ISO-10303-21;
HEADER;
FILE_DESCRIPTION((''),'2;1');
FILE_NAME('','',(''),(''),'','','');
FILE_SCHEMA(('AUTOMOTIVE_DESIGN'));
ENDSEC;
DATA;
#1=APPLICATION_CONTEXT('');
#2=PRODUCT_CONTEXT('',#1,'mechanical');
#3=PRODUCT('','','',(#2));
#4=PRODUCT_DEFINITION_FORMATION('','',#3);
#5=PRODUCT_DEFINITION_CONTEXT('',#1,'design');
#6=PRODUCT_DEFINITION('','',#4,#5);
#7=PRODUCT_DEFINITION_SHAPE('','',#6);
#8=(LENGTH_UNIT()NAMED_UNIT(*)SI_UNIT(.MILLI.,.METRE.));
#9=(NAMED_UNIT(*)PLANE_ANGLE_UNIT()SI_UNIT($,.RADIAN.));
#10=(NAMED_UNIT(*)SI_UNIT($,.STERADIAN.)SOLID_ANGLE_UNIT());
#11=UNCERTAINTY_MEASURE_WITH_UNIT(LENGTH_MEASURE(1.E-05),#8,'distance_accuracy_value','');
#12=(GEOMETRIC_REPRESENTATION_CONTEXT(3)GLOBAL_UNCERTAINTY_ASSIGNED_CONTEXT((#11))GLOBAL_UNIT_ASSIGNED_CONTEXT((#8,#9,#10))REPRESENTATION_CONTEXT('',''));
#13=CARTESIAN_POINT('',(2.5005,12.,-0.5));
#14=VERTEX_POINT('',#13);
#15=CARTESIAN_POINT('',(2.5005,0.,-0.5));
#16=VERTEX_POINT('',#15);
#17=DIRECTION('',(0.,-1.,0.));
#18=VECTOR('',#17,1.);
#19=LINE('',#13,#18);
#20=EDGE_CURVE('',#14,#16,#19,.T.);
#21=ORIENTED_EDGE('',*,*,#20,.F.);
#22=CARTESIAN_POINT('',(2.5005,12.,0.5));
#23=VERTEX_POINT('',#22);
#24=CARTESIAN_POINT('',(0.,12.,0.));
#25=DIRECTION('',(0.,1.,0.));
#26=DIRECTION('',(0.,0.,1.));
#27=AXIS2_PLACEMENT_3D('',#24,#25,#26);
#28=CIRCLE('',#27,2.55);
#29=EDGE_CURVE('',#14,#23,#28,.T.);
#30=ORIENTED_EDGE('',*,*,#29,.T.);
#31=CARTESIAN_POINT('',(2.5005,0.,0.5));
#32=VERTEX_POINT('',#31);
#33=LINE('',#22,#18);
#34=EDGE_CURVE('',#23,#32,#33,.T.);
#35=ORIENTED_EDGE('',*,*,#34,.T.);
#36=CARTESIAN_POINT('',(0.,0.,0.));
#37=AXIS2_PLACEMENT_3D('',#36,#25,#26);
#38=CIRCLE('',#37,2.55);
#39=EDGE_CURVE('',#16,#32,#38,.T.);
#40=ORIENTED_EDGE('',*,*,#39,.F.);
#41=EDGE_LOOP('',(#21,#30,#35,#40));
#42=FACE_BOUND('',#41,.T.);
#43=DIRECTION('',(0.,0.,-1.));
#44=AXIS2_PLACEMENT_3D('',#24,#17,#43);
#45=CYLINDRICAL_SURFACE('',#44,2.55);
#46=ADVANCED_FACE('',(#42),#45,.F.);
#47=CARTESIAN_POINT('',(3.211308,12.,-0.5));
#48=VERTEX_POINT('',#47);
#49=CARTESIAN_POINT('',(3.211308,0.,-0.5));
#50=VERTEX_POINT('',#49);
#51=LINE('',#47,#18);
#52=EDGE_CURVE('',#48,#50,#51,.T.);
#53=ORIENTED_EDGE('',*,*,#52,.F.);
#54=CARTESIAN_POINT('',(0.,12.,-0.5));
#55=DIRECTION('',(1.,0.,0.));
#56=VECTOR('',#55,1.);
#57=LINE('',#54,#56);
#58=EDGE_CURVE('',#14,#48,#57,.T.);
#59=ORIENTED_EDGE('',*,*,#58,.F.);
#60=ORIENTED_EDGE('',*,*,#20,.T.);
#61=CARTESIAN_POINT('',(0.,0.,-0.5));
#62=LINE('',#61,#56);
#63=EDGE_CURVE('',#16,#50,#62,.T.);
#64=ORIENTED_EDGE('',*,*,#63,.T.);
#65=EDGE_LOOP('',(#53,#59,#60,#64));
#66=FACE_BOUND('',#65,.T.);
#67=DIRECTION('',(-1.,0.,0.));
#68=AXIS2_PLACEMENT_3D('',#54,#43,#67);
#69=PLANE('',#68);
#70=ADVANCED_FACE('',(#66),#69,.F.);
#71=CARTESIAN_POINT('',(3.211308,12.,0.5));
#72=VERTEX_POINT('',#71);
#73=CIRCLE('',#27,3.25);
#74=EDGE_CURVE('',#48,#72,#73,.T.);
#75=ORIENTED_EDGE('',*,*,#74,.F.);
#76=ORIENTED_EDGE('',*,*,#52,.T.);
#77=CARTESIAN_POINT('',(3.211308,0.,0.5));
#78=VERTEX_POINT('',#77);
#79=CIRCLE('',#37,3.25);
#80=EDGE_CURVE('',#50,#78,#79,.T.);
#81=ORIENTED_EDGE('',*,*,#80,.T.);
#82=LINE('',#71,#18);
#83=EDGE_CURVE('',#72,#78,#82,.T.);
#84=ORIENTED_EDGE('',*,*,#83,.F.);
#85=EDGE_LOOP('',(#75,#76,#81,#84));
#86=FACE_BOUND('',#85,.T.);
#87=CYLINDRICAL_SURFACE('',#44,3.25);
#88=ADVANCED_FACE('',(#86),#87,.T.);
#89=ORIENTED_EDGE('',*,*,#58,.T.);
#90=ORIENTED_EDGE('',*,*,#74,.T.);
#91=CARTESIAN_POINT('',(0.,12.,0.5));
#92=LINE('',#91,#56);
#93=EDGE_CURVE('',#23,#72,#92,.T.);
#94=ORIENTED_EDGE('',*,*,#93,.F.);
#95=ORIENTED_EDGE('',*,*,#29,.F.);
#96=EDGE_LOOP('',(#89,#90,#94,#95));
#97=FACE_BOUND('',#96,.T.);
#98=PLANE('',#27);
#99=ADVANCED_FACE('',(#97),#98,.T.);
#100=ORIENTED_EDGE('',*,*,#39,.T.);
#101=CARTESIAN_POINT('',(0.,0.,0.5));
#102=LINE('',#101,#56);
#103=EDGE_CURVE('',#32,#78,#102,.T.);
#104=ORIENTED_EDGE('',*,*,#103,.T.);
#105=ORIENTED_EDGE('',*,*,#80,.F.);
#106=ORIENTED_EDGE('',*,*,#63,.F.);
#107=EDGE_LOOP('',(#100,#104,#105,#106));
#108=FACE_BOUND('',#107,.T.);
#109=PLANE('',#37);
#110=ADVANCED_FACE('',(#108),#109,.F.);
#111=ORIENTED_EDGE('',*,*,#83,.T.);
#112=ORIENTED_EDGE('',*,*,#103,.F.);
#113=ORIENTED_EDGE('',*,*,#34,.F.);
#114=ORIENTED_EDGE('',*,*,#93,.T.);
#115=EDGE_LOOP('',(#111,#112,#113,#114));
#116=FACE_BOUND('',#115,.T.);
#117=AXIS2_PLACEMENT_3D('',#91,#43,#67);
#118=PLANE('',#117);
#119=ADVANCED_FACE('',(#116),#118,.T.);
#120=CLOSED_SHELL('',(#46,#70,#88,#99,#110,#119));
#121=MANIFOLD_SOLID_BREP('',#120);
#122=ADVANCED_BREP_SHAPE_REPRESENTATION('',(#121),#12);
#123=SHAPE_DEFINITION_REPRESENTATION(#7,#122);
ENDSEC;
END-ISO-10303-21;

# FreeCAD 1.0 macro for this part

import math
import FreeCAD as App
import Part
import Sketcher
Q = App.Units.Quantity

doc = App.newDocument("Part")
params = doc.addObject("Spreadsheet::Sheet", "Params")
for row, (alias, value) in enumerate([
    ("sketch1_radius", "2.55 mm"),
    ("sketch1_radius2", "3.25 mm"),
    ("pad1_length", "12 mm"),
], start=1):
    params.set(f"A{row}", alias)
    params.set(f"B{row}", "=" + value)
    params.setAlias(f"B{row}", alias)

body = doc.addObject("PartDesign::Body", "Body")

# Sketch on XZ plane
sketch1 = body.newObject("Sketcher::SketchObject", "Sketch")
sketch1.AttachmentSupport = (doc.getObject("XZ_Plane"), [""])
sketch1.MapMode = "FlatFace"
sketch1.addGeometry(Part.ArcOfCircle(Part.Circle(App.Vector(0, 0, 0), App.Vector(0, 0, 1), 2.5), math.radians(11), math.radians(349)), False)
sketch1.addGeometry(Part.LineSegment(App.Vector(2.5, -0.5, 0), App.Vector(3.2, -0.5, 0)), False)
sketch1.addGeometry(Part.ArcOfCircle(Part.Circle(App.Vector(0, 0, 0), App.Vector(0, 0, 1), 3.2), math.radians(9), math.radians(351)), False)
sketch1.addGeometry(Part.LineSegment(App.Vector(3.2, 0.5, 0), App.Vector(2.5, 0.5, 0)), False)
sketch1.addConstraint(Sketcher.Constraint("Coincident", 0, 2, 1, 1))
sketch1.addConstraint(Sketcher.Constraint("Coincident", 1, 2, 2, 2))
sketch1.addConstraint(Sketcher.Constraint("Coincident", 2, 1, 3, 1))
sketch1.addConstraint(Sketcher.Constraint("Coincident", 3, 2, 0, 1))
sketch1.addConstraint(Sketcher.Constraint("Horizontal", 1))
sketch1.addConstraint(Sketcher.Constraint("Horizontal", 3))
sketch1.addConstraint(Sketcher.Constraint("Coincident", 0, 3, -1, 1))
sketch1.addConstraint(Sketcher.Constraint("Coincident", 2, 3, -1, 1))
sketch1.addConstraint(Sketcher.Constraint("Vertical", 1, 2, 2, 1))
sketch1.addConstraint(Sketcher.Constraint("Radius", 0, Q("2.55 mm")))
sketch1.addConstraint(Sketcher.Constraint("Radius", 2, Q("3.25 mm")))
sketch1.addConstraint(Sketcher.Constraint("DistanceY", 1, 2, 2, 1, Q("1 mm")))
sketch1.setExpression("Constraints[9]", "Params.sketch1_radius")
sketch1.setExpression("Constraints[10]", "Params.sketch1_radius2")
pad1 = body.newObject("PartDesign::Pad", "Pad")
pad1.Profile = sketch1
pad1.setExpression("Length", "Params.pad1_length")
pad1.Reversed = True

doc.recompute()
